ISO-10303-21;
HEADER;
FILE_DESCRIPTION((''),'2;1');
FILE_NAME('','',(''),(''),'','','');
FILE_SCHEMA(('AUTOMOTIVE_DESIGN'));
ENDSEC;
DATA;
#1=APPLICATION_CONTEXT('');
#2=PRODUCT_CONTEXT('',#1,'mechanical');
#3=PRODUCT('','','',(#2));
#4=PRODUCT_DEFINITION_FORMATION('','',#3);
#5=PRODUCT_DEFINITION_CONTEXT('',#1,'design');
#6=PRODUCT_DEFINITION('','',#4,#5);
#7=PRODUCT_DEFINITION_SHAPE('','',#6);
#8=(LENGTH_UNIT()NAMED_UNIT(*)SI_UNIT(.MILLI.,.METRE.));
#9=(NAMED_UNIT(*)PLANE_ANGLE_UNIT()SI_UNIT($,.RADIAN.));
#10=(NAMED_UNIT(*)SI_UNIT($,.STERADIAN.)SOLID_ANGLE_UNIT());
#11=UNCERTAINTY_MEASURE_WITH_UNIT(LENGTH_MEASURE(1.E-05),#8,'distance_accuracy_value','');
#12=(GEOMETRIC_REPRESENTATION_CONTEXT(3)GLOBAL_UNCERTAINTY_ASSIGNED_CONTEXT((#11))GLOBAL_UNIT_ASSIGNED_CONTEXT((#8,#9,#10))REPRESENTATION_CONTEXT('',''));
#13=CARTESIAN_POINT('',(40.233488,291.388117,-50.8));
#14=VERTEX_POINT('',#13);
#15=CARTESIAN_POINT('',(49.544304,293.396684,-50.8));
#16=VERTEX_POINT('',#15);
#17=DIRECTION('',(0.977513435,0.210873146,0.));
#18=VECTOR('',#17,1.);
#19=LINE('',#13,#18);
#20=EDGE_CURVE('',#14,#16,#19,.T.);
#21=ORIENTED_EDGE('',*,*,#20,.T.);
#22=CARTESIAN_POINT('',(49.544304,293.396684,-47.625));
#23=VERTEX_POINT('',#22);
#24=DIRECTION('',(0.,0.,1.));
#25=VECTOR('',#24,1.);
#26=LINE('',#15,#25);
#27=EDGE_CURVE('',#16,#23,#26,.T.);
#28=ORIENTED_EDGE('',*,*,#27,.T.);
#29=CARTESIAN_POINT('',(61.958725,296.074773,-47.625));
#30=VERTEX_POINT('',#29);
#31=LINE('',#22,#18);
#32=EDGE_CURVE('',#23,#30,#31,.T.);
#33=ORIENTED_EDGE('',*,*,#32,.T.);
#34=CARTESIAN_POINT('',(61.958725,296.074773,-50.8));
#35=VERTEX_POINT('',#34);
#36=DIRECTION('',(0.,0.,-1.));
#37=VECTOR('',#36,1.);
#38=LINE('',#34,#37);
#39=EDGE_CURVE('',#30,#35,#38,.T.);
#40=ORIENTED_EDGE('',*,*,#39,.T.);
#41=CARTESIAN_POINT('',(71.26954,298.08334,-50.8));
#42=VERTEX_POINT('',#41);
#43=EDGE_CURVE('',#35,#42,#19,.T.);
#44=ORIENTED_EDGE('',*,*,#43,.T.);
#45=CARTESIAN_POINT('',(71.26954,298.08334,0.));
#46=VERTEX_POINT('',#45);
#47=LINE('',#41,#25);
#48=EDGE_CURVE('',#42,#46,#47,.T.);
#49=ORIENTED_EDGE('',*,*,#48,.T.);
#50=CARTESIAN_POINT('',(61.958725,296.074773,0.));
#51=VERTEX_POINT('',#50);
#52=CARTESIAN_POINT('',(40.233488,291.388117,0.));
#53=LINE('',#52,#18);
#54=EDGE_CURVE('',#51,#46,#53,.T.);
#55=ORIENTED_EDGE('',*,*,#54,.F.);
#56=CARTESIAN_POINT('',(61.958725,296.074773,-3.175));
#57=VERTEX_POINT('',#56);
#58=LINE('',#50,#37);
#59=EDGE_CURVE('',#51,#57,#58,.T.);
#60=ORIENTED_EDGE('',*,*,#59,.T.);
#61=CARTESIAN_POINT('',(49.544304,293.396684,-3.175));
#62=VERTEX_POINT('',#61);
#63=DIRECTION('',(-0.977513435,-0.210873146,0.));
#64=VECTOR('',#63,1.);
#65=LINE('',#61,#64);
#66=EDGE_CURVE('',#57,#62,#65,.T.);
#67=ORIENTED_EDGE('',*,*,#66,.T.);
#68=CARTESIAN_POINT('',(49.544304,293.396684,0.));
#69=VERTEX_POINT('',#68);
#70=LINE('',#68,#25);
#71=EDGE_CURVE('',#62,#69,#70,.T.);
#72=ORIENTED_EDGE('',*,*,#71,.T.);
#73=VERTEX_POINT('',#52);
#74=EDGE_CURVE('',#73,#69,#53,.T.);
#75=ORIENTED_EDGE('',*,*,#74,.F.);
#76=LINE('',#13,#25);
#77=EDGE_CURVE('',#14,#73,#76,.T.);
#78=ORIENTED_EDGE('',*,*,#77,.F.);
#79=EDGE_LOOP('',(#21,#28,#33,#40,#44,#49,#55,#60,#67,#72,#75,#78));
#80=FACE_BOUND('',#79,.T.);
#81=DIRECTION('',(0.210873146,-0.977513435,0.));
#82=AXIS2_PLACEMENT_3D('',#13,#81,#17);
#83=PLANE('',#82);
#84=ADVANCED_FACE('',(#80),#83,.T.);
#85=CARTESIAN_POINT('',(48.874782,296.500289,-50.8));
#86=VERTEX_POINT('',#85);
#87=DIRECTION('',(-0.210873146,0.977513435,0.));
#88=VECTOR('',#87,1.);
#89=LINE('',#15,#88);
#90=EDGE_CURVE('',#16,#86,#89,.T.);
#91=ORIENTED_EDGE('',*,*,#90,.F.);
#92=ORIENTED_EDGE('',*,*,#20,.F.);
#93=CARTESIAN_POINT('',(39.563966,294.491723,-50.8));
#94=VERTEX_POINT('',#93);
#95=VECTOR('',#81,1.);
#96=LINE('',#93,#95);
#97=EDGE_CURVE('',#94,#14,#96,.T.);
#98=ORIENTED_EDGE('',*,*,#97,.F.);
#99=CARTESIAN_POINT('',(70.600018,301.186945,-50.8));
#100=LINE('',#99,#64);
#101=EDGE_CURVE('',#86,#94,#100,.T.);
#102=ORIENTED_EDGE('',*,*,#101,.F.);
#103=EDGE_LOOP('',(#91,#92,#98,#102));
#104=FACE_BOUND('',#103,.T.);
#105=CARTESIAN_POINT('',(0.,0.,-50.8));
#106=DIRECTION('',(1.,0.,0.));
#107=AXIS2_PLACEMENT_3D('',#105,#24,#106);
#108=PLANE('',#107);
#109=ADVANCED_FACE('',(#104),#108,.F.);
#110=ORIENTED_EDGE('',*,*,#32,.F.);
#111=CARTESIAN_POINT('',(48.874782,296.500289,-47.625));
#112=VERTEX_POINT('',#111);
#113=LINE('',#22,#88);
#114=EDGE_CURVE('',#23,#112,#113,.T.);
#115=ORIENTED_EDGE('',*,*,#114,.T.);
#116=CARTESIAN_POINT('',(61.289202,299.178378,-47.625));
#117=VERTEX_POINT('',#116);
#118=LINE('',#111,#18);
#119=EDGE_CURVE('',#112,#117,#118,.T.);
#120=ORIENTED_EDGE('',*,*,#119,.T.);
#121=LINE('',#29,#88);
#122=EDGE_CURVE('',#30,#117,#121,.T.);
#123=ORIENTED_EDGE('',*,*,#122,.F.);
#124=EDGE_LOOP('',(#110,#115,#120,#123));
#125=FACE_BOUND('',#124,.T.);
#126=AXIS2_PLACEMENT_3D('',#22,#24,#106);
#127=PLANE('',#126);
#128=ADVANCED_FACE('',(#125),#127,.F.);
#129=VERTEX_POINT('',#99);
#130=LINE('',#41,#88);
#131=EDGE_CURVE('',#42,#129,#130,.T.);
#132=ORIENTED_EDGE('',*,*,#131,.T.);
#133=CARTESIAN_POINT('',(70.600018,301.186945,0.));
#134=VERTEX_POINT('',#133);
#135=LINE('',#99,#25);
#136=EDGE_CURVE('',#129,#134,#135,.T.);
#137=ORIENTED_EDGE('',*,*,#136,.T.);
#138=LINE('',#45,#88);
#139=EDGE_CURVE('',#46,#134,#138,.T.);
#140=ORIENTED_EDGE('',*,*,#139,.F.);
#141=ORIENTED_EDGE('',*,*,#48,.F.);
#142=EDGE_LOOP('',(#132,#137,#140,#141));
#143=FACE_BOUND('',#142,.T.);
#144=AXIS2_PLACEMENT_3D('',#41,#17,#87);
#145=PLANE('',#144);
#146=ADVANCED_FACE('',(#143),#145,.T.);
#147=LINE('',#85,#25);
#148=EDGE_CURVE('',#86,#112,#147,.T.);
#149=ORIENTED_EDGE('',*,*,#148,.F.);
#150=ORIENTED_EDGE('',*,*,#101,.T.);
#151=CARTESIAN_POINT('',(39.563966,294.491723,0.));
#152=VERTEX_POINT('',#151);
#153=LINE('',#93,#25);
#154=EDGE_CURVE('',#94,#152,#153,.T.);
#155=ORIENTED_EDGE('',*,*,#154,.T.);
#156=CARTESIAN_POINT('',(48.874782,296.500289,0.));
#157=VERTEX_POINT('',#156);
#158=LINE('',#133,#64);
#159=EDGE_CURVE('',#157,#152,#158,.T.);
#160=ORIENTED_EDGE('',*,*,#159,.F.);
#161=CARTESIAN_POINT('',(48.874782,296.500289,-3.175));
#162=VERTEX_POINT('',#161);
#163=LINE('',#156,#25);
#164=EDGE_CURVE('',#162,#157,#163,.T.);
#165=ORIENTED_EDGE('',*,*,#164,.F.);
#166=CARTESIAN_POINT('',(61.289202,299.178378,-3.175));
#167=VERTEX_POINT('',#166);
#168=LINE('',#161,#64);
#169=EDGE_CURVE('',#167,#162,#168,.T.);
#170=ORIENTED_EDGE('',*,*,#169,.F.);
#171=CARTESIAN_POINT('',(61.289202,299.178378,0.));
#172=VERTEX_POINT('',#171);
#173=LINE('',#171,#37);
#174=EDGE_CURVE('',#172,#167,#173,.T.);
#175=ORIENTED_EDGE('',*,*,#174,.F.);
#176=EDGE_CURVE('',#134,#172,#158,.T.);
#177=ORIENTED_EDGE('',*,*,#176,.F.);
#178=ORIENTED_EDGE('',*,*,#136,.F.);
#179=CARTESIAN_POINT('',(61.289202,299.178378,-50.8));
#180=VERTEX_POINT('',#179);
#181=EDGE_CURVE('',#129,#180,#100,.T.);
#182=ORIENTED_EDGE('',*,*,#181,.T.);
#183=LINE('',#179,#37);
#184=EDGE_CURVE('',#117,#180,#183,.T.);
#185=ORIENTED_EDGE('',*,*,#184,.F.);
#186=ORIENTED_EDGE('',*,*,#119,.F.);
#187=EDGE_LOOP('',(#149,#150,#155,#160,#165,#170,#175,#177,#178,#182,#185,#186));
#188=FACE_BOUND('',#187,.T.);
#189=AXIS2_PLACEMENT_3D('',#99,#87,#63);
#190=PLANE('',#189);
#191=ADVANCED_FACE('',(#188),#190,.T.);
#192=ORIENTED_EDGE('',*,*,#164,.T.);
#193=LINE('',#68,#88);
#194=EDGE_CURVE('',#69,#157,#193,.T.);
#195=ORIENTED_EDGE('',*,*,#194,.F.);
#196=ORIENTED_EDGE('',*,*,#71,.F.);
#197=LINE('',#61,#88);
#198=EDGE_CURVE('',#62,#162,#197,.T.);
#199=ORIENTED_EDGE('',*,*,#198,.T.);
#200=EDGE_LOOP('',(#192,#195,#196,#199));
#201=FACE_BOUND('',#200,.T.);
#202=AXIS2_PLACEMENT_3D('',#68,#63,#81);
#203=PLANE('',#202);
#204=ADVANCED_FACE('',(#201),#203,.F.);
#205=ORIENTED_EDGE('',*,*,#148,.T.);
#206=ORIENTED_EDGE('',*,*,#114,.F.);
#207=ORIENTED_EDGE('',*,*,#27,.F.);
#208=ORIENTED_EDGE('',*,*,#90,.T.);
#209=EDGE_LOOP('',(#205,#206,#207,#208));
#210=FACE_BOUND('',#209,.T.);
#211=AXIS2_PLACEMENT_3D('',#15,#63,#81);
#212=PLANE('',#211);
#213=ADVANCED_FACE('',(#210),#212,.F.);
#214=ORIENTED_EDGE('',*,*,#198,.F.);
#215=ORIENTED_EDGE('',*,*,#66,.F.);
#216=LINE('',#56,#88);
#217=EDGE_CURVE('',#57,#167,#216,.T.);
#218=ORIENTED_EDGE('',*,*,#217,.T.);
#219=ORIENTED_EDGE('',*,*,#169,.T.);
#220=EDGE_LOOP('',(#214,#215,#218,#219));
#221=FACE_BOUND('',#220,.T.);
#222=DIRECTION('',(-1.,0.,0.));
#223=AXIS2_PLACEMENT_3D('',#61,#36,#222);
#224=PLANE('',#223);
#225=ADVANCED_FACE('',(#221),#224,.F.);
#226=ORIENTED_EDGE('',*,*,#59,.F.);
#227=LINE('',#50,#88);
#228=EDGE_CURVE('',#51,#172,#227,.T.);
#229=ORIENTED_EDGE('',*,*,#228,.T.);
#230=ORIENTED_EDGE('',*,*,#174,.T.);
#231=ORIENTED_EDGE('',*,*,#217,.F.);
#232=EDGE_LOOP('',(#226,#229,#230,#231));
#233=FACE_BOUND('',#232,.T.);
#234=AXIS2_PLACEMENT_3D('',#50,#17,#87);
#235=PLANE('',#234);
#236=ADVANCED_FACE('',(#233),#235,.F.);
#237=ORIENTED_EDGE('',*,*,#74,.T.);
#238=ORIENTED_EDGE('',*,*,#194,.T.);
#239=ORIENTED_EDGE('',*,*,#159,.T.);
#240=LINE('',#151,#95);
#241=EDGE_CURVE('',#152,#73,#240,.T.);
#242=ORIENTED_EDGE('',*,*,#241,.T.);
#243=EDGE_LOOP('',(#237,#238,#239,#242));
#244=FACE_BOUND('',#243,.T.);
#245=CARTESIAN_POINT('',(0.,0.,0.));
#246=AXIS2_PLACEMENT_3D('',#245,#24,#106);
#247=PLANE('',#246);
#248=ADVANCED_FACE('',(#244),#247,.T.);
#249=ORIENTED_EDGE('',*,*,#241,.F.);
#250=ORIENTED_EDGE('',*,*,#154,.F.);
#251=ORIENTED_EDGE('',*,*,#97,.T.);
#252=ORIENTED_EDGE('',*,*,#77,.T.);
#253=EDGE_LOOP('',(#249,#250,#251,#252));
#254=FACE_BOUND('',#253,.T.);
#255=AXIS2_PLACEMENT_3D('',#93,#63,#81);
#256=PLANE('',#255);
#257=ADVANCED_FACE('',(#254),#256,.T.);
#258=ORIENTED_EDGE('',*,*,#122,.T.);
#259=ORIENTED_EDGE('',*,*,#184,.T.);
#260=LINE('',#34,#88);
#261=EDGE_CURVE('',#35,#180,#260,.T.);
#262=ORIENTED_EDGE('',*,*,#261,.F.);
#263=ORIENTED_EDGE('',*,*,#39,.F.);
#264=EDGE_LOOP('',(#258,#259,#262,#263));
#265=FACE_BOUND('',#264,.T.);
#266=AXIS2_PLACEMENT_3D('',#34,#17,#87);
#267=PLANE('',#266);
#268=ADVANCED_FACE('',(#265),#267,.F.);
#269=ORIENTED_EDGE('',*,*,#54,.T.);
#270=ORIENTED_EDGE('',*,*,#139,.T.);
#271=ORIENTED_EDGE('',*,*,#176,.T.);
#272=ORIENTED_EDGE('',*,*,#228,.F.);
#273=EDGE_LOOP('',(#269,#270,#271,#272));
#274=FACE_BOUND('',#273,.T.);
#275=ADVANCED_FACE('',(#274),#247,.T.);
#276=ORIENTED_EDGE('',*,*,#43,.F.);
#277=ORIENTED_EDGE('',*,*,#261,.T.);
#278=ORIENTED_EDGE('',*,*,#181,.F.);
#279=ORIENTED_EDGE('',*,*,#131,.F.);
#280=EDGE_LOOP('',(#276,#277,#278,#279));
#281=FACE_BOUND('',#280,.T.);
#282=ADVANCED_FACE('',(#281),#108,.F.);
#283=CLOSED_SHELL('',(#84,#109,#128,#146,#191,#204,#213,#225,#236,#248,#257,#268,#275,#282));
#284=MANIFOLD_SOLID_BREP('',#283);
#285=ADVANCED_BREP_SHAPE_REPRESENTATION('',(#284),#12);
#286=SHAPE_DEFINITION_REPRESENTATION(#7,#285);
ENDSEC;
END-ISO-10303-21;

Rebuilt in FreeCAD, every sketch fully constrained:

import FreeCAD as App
import Part
import Sketcher
Q = App.Units.Quantity


def add_polygon(sketch, points):
    """Adds a closed chain of lines whose ends are joined by coincident constraints."""
    first, n = sketch.GeometryCount, len(points)
    for a, b in zip(points, points[1:] + points[:1]):
        sketch.addGeometry(Part.LineSegment(App.Vector(*a, 0), App.Vector(*b, 0)), False)
    for i in range(n):
        sketch.addConstraint(Sketcher.Constraint("Coincident", first + i, 2, first + (i + 1) % n, 1))

doc = App.newDocument("Part")
body = doc.addObject("PartDesign::Body", "Body")

# Sketch on XY plane
sketch1 = body.newObject("Sketcher::SketchObject", "Sketch")
sketch1.AttachmentSupport = (doc.getObject("XY_Plane"), [""])
sketch1.MapMode = "FlatFace"
add_polygon(sketch1, [(39.6, 294.5), (40.2, 291.4), (71.3, 298.1), (70.6, 301.2)])  # lines 0-3
sketch1.addConstraint([
    Sketcher.Constraint("Perpendicular", 0, 1),
    Sketcher.Constraint("Perpendicular", 1, 2),
    Sketcher.Constraint("Perpendicular", 2, 3),
    Sketcher.Constraint("Distance", 1, Q("1.25 in")),
    Sketcher.Constraint("Distance", 0, Q("0.125 in")),
    Sketcher.Constraint("DistanceX", -1, 1, 0, 2, 40.233488),
    Sketcher.Constraint("DistanceX", -1, 1, 1, 2, 71.26954),
    Sketcher.Constraint("DistanceY", -1, 1, 1, 2, 298.08334),
])
pad1 = body.newObject("PartDesign::Pad", "Pad")
pad1.Profile = sketch1
pad1.Length = Q("2 in")
pad1.Reversed = True

# Sketch on an angled plane
sketch2 = body.newObject("Sketcher::SketchObject", "Sketch001")
sketch2.Placement = App.Placement(App.Vector(-58.944662, 273.241044, 0), App.Rotation(App.Vector(0.977513435, 0.210873146, 0), App.Vector(0, 0, -0.999999999), App.Vector(-0.210873146, 0.977513435, 0), "ZXY"))
add_polygon(sketch2, [(110.3, 50.8), (110.3, 47.6), (123, 47.6), (123, 50.8)])  # lines 0-3
add_polygon(sketch2, [(110.3, 3.2), (110.3, 0), (123, 0), (123, 3.2)])  # lines 4-7
sketch2.addConstraint([
    Sketcher.Constraint("Vertical", 0),
    Sketcher.Constraint("Horizontal", 1),
    Sketcher.Constraint("Vertical", 2),
    Sketcher.Constraint("Horizontal", 3),
    Sketcher.Constraint("Vertical", 4),
    Sketcher.Constraint("Horizontal", 5),
    Sketcher.Constraint("Vertical", 6),
    Sketcher.Constraint("Horizontal", 7),
    Sketcher.Constraint("PointOnObject", 4, 2, -1),
    Sketcher.Constraint("Vertical", 3, 2, 4, 2),
    Sketcher.Constraint("Vertical", 2, 2, 5, 2),
    Sketcher.Constraint("Equal", 2, 4),
    Sketcher.Constraint("DistanceX", 1, 1, 1, 2, Q("0.5 in")),
    Sketcher.Constraint("DistanceY", -1, 1, 2, 2, Q("2 in")),
    Sketcher.Constraint("DistanceY", 0, 2, 0, 1, Q("0.125 in")),
    Sketcher.Constraint("DistanceX", -1, 1, 0, 2, 110.299705),
])
pocket1 = body.newObject("PartDesign::Pocket", "Pocket")
pocket1.Profile = sketch2
pocket1.Length = Q("0.125 in")

doc.recompute()
